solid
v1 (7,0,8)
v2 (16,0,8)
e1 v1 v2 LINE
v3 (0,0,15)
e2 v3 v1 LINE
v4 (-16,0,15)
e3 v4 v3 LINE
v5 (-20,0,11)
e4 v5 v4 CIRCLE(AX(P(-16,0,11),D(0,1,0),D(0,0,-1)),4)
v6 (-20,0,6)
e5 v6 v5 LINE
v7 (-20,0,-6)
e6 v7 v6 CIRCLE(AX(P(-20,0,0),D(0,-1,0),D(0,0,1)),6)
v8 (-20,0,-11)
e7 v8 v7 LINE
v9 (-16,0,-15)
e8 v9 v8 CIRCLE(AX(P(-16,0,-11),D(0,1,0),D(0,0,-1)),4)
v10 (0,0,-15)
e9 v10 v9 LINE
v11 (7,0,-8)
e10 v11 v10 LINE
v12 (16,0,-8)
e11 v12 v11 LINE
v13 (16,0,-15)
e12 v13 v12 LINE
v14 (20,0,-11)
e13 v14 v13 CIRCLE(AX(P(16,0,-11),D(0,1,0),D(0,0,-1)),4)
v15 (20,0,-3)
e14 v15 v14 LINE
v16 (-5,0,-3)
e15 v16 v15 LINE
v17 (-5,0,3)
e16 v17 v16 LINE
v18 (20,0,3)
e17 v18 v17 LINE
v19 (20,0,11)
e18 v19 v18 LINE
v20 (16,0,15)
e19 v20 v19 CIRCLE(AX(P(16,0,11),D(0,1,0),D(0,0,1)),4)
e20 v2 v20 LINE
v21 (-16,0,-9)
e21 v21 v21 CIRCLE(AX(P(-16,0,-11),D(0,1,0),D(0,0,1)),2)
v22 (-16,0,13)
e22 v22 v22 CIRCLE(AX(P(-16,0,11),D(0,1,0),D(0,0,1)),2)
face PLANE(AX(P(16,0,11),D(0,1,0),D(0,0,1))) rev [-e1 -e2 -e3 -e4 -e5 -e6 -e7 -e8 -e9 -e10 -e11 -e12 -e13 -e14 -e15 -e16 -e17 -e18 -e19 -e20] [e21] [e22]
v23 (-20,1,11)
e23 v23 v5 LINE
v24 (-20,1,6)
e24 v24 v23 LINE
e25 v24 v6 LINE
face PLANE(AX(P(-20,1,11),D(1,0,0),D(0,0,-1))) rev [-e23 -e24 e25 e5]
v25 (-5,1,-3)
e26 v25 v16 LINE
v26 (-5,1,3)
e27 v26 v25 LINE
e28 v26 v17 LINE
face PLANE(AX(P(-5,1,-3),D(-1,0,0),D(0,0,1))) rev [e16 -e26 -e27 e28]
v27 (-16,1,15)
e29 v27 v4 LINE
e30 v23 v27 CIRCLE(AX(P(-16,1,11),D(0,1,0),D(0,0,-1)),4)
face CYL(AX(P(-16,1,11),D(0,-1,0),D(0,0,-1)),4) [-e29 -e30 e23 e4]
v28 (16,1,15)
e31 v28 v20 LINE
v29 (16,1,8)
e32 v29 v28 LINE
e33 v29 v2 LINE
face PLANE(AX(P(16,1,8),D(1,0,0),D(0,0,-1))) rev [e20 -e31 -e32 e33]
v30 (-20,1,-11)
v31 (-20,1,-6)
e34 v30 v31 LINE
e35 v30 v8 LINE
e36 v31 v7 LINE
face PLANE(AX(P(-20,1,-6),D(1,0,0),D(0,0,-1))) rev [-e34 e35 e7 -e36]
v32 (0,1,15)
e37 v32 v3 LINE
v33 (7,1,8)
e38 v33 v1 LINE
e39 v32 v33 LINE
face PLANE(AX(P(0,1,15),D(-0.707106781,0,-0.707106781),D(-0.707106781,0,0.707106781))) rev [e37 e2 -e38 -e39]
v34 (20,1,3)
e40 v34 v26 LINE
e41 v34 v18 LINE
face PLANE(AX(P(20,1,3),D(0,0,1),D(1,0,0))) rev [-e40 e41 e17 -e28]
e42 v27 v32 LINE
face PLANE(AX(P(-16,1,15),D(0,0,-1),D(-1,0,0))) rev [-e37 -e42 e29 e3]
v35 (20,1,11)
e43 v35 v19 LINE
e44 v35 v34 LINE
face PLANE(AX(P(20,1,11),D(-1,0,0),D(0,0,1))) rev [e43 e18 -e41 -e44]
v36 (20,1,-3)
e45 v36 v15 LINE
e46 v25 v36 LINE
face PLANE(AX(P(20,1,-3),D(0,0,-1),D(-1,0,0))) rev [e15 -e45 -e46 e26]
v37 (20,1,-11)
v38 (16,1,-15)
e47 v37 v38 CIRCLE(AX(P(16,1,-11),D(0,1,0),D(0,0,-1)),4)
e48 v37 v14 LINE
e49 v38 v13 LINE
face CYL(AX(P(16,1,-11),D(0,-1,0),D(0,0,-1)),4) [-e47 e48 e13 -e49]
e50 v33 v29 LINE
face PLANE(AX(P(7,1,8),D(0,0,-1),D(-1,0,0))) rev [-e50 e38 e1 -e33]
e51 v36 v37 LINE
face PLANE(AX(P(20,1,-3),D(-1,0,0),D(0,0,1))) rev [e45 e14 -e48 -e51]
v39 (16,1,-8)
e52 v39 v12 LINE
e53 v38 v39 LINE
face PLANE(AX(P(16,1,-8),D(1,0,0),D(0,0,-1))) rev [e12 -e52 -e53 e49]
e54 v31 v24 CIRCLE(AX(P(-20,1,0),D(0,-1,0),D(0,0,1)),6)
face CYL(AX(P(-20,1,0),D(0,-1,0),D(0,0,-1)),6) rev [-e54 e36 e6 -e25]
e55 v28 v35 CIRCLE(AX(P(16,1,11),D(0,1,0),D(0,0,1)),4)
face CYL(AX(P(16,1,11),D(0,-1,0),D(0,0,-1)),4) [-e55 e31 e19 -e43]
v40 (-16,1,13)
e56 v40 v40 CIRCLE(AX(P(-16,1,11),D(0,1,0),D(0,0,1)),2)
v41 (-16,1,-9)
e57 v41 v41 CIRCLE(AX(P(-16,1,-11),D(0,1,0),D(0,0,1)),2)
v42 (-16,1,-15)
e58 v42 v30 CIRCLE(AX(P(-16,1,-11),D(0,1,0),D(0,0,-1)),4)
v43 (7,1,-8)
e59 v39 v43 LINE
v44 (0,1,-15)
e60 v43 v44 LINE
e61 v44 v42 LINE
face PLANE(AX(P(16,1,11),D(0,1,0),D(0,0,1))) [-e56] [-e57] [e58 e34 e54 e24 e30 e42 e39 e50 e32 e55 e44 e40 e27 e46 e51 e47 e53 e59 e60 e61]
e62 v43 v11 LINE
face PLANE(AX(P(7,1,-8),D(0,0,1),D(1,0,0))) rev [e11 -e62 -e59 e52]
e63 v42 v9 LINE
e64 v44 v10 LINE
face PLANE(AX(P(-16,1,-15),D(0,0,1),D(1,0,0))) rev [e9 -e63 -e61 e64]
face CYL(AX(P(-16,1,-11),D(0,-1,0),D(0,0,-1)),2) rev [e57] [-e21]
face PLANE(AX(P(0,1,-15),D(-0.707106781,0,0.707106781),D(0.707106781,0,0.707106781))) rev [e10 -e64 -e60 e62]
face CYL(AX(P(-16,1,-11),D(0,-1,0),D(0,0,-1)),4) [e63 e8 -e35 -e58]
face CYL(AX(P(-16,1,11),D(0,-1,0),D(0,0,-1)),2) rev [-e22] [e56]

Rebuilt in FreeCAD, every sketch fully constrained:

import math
import FreeCAD as App
import Part
import Sketcher
from FreeCAD import Vector
Q = App.Units.Quantity

doc = App.newDocument("Part")
params = doc.addObject("Spreadsheet::Sheet", "Params")
for row, (alias, value) in enumerate([
    ("sketch1_diameter", "4 mm"),
    ("sketch1_radius", "6 mm"),
    ("sketch1_radius2", "4 mm"),
    ("sketch1_width", "16 mm"),
    ("sketch1_width2", "9 mm"),
    ("pad1_length", "1 mm"),
], start=1):
    params.set(f"A{row}", alias)
    params.set(f"B{row}", "=" + value)
    params.setAlias(f"B{row}", alias)

body = doc.addObject("PartDesign::Body", "Body")

sketch1 = doc.addObject("Sketcher::SketchObject", "Sketch")
body.addObject(sketch1)
sketch1.AttachmentSupport = (doc.XZ_Plane, [""])
sketch1.MapMode = "FlatFace"
sketch1.addGeometry(Part.LineSegment(Vector(-20, -11, 0), Vector(-20, -6, 0)), False)
sketch1.addGeometry(Part.ArcOfCircle(Part.Circle(Vector(-20, 0, 0), Vector(0, 0, 1), 6), math.radians(-90), math.radians(90)), False)
sketch1.addGeometry(Part.LineSegment(Vector(-20, 6, 0), Vector(-20, 11, 0)), False)
sketch1.addGeometry(Part.ArcOfCircle(Part.Circle(Vector(-16, 11, 0), Vector(0, 0, 1), 4), math.radians(90), math.radians(180)), False)
sketch1.addGeometry(Part.LineSegment(Vector(-16, 15, 0), Vector(0, 15, 0)), False)
sketch1.addGeometry(Part.LineSegment(Vector(0, 15, 0), Vector(7, 8, 0)), False)
sketch1.addGeometry(Part.LineSegment(Vector(7, 8, 0), Vector(16, 8, 0)), False)
sketch1.addGeometry(Part.LineSegment(Vector(16, 8, 0), Vector(16, 15, 0)), False)
sketch1.addGeometry(Part.ArcOfCircle(Part.Circle(Vector(16, 11, 0), Vector(0, 0, 1), 4), math.radians(0), math.radians(90)), False)
sketch1.addGeometry(Part.LineSegment(Vector(20, 11, 0), Vector(20, 3, 0)), False)
sketch1.addGeometry(Part.LineSegment(Vector(20, 3, 0), Vector(-5, 3, 0)), False)
sketch1.addGeometry(Part.LineSegment(Vector(-5, 3, 0), Vector(-5, -3, 0)), False)
sketch1.addGeometry(Part.LineSegment(Vector(-5, -3, 0), Vector(20, -3, 0)), False)
sketch1.addGeometry(Part.LineSegment(Vector(20, -3, 0), Vector(20, -11, 0)), False)
sketch1.addGeometry(Part.ArcOfCircle(Part.Circle(Vector(16, -11, 0), Vector(0, 0, 1), 4), math.radians(-90), math.radians(0)), False)
sketch1.addGeometry(Part.LineSegment(Vector(16, -15, 0), Vector(16, -8, 0)), False)
sketch1.addGeometry(Part.LineSegment(Vector(16, -8, 0), Vector(7, -8, 0)), False)
sketch1.addGeometry(Part.LineSegment(Vector(7, -8, 0), Vector(0, -15, 0)), False)
sketch1.addGeometry(Part.LineSegment(Vector(0, -15, 0), Vector(-16, -15, 0)), False)
sketch1.addGeometry(Part.ArcOfCircle(Part.Circle(Vector(-16, -11, 0), Vector(0, 0, 1), 4), math.radians(180), math.radians(270)), False)
sketch1.addGeometry(Part.Circle(Vector(-16, 11, 0), Vector(0, 0, 1), 2), False)
sketch1.addGeometry(Part.Circle(Vector(-16, -11, 0), Vector(0, 0, 1), 2), False)
sketch1.addConstraint(Sketcher.Constraint("Coincident", 0, 2, 1, 1))
sketch1.addConstraint(Sketcher.Constraint("Coincident", 1, 2, 2, 1))
sketch1.addConstraint(Sketcher.Constraint("Tangent", 2, 2, 3, 2))
sketch1.addConstraint(Sketcher.Constraint("Tangent", 3, 1, 4, 1))
sketch1.addConstraint(Sketcher.Constraint("Coincident", 4, 2, 5, 1))
sketch1.addConstraint(Sketcher.Constraint("Coincident", 5, 2, 6, 1))
sketch1.addConstraint(Sketcher.Constraint("Coincident", 6, 2, 7, 1))
sketch1.addConstraint(Sketcher.Constraint("Coincident", 7, 2, 8, 2))
sketch1.addConstraint(Sketcher.Constraint("Tangent", 8, 1, 9, 1))
sketch1.addConstraint(Sketcher.Constraint("Coincident", 9, 2, 10, 1))
sketch1.addConstraint(Sketcher.Constraint("Coincident", 10, 2, 11, 1))
sketch1.addConstraint(Sketcher.Constraint("Coincident", 11, 2, 12, 1))
sketch1.addConstraint(Sketcher.Constraint("Coincident", 12, 2, 13, 1))
sketch1.addConstraint(Sketcher.Constraint("Tangent", 13, 2, 14, 2))
sketch1.addConstraint(Sketcher.Constraint("Coincident", 14, 1, 15, 1))
sketch1.addConstraint(Sketcher.Constraint("Coincident", 15, 2, 16, 1))
sketch1.addConstraint(Sketcher.Constraint("Coincident", 16, 2, 17, 1))
sketch1.addConstraint(Sketcher.Constraint("Coincident", 17, 2, 18, 1))
sketch1.addConstraint(Sketcher.Constraint("Tangent", 18, 2, 19, 2))
sketch1.addConstraint(Sketcher.Constraint("Tangent", 19, 1, 0, 1))
sketch1.addConstraint(Sketcher.Constraint("Vertical", 0))
sketch1.addConstraint(Sketcher.Constraint("Vertical", 2))
sketch1.addConstraint(Sketcher.Constraint("Horizontal", 4))
sketch1.addConstraint(Sketcher.Constraint("Horizontal", 6))
sketch1.addConstraint(Sketcher.Constraint("Vertical", 7))
sketch1.addConstraint(Sketcher.Constraint("Vertical", 9))
sketch1.addConstraint(Sketcher.Constraint("Horizontal", 10))
sketch1.addConstraint(Sketcher.Constraint("Vertical", 11))
sketch1.addConstraint(Sketcher.Constraint("Horizontal", 12))
sketch1.addConstraint(Sketcher.Constraint("Vertical", 13))
sketch1.addConstraint(Sketcher.Constraint("Vertical", 15))
sketch1.addConstraint(Sketcher.Constraint("Horizontal", 16))
sketch1.addConstraint(Sketcher.Constraint("Horizontal", 18))
sketch1.addConstraint(Sketcher.Constraint("Coincident", 20, 3, 3, 3))
sketch1.addConstraint(Sketcher.Constraint("Coincident", 21, 3, 19, 3))
sketch1.addConstraint(Sketcher.Constraint("Equal", 3, 8))
sketch1.addConstraint(Sketcher.Constraint("Equal", 8, 14))
sketch1.addConstraint(Sketcher.Constraint("Equal", 14, 19))
sketch1.addConstraint(Sketcher.Constraint("Equal", 20, 21))
sketch1.addConstraint(Sketcher.Constraint("Symmetric", 3, 3, 14, 3, -1, 1))
sketch1.addConstraint(Sketcher.Constraint("Symmetric", 8, 3, 19, 3, -1, 1))
sketch1.addConstraint(Sketcher.Constraint("Symmetric", 4, 2, 17, 2, -1, 1))
sketch1.addConstraint(Sketcher.Constraint("Symmetric", 0, 2, 1, 2, -1))
sketch1.addConstraint(Sketcher.Constraint("Symmetric", 6, 2, 15, 2, -1))
sketch1.addConstraint(Sketcher.Constraint("PointOnObject", 4, 2, -2))
sketch1.addConstraint(Sketcher.Constraint("Perpendicular", 5, 17))
sketch1.addConstraint(Sketcher.Constraint("Vertical", 1, 3, 0, 2))
sketch1.addConstraint(Sketcher.Constraint("Vertical", 14, 3, 6, 2))
sketch1.addConstraint(Sketcher.Constraint("Vertical", 5, 2, 16, 2))
sketch1.addConstraint(Sketcher.Constraint("Equal", 9, 13))
sketch1.addConstraint(Sketcher.Constraint("Diameter", 20, Q("4 mm")))
sketch1.addConstraint(Sketcher.Constraint("Radius", 1, Q("6 mm")))
sketch1.addConstraint(Sketcher.Constraint("Radius", 3, Q("4 mm")))
sketch1.addConstraint(Sketcher.Constraint("DistanceX", 4, 1, 4, 2, Q("16 mm")))
sketch1.addConstraint(Sketcher.Constraint("DistanceX", 6, 1, 6, 2, Q("9 mm")))
sketch1.addConstraint(Sketcher.Constraint("DistanceX", 10, 2, 10, 1, Q("25 mm")))
sketch1.addConstraint(Sketcher.Constraint("DistanceY", 0, 1, 0, 2, Q("5 mm")))
sketch1.addConstraint(Sketcher.Constraint("DistanceY", 9, 2, 9, 1, Q("8 mm")))
sketch1.setExpression("Constraints[50]", "Params.sketch1_diameter")
sketch1.setExpression("Constraints[51]", "Params.sketch1_radius")
sketch1.setExpression("Constraints[52]", "Params.sketch1_radius2")
sketch1.setExpression("Constraints[53]", "Params.sketch1_width")
sketch1.setExpression("Constraints[54]", "Params.sketch1_width2")
pad1 = doc.addObject("PartDesign::Pad", "Pad")
body.addObject(pad1)
pad1.Profile = sketch1
pad1.setExpression("Length", "Params.pad1_length")
pad1.Reversed = True

doc.recompute()
